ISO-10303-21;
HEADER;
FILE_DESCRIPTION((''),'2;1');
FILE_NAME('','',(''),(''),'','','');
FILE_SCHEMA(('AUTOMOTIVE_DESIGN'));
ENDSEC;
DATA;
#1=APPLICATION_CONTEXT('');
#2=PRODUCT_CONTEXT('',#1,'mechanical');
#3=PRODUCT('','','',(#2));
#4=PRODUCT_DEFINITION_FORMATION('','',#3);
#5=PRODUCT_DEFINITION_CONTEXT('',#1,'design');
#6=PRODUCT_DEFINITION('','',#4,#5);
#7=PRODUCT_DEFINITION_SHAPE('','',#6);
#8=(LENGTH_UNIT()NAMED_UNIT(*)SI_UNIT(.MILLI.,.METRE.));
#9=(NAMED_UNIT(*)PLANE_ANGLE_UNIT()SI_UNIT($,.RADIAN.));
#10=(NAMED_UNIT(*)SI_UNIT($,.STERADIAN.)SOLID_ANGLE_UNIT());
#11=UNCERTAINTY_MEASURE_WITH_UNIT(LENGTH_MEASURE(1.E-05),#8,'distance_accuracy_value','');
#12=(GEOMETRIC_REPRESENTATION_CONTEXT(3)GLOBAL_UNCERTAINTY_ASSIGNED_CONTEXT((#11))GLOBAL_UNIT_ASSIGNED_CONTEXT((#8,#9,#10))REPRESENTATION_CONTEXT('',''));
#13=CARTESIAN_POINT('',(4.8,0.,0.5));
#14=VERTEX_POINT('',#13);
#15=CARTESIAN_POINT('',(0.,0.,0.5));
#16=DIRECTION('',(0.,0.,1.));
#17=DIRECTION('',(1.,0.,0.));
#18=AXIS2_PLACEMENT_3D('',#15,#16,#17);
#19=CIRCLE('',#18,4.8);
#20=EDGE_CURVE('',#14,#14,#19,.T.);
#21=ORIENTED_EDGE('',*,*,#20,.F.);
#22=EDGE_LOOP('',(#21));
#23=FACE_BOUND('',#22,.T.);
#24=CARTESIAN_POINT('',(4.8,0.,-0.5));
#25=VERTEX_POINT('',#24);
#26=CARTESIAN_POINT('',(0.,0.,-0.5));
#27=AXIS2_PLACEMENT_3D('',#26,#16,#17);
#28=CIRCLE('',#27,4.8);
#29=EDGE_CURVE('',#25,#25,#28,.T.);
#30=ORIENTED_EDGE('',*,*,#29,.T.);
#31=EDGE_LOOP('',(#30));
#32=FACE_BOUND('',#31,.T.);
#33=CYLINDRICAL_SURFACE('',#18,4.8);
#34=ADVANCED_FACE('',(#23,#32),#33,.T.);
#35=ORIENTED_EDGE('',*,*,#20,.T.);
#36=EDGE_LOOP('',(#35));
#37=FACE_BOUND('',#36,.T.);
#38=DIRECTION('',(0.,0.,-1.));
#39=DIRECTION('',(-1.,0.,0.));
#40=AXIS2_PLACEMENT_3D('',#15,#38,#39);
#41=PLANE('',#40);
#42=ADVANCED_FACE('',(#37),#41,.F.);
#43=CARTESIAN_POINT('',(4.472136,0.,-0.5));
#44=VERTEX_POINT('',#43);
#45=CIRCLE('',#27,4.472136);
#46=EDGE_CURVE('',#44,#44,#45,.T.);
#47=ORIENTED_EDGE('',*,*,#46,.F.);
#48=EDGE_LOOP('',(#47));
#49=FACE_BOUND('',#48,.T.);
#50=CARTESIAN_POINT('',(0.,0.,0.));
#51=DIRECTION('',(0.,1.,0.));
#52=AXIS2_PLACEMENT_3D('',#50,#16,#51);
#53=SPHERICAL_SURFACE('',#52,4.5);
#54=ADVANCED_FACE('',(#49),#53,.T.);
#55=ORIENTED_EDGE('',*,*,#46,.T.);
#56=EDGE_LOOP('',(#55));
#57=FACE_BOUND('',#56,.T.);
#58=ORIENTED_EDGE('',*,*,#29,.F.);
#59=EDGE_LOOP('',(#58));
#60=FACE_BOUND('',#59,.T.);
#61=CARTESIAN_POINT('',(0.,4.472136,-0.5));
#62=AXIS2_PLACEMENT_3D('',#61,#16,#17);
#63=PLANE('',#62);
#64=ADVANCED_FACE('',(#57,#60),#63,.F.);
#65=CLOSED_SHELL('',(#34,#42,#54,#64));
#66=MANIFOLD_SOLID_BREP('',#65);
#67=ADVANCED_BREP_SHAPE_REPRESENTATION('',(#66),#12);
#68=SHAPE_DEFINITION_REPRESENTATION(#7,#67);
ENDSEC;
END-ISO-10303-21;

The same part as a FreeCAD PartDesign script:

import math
import FreeCAD as App
import Part
import Sketcher

V = App.Vector

doc = App.newDocument("Part")
body = doc.addObject("PartDesign::Body", "Body")

sketch1 = body.newObject("Sketcher::SketchObject", "Sketch")
sketch1.AttachmentSupport = (doc.getObject("YZ_Plane"), [""])
sketch1.MapMode = "FlatFace"
sketch1.addGeometry([
    Part.LineSegment(V(0, 0.5, 0), V(0, -4.5, 0)),
    Part.ArcOfCircle(Part.Circle(V(0, 0, 0), V(0, 0, 1), 4.5), math.radians(-90), math.radians(-6)),
    Part.LineSegment(V(4.47, -0.5, 0), V(4.8, -0.5, 0)),
    Part.LineSegment(V(4.8, -0.5, 0), V(4.8, 0.5, 0)),
    Part.LineSegment(V(4.8, 0.5, 0), V(0, 0.5, 0)),
], False)
sketch1.addConstraint([
    Sketcher.Constraint("Coincident", 0, 2, 1, 1),
    Sketcher.Constraint("Coincident", 1, 2, 2, 1),
    Sketcher.Constraint("Coincident", 2, 2, 3, 1),
    Sketcher.Constraint("Coincident", 3, 2, 4, 1),
    Sketcher.Constraint("Coincident", 4, 2, 0, 1),
    Sketcher.Constraint("Vertical", 0),
    Sketcher.Constraint("Horizontal", 2),
    Sketcher.Constraint("Vertical", 3),
    Sketcher.Constraint("Horizontal", 4),
    Sketcher.Constraint("Coincident", 1, 3, -1, 1),
    Sketcher.Constraint("PointOnObject", 0, 2, -2),
    Sketcher.Constraint("Radius", 1, 4.5),
    Sketcher.Constraint("DistanceY", 0, 2, 0, 1, 5.0),
    Sketcher.Constraint("DistanceY", 3, 1, 3, 2, 1.0),
    Sketcher.Constraint("DistanceX", 4, 2, 4, 1, 4.8),
])
revolution = body.newObject("PartDesign::Revolution", "Revolution")
revolution.Profile = sketch1
revolution.ReferenceAxis = (sketch1, ["V_Axis"])
revolution.Angle = 360

doc.recompute()
